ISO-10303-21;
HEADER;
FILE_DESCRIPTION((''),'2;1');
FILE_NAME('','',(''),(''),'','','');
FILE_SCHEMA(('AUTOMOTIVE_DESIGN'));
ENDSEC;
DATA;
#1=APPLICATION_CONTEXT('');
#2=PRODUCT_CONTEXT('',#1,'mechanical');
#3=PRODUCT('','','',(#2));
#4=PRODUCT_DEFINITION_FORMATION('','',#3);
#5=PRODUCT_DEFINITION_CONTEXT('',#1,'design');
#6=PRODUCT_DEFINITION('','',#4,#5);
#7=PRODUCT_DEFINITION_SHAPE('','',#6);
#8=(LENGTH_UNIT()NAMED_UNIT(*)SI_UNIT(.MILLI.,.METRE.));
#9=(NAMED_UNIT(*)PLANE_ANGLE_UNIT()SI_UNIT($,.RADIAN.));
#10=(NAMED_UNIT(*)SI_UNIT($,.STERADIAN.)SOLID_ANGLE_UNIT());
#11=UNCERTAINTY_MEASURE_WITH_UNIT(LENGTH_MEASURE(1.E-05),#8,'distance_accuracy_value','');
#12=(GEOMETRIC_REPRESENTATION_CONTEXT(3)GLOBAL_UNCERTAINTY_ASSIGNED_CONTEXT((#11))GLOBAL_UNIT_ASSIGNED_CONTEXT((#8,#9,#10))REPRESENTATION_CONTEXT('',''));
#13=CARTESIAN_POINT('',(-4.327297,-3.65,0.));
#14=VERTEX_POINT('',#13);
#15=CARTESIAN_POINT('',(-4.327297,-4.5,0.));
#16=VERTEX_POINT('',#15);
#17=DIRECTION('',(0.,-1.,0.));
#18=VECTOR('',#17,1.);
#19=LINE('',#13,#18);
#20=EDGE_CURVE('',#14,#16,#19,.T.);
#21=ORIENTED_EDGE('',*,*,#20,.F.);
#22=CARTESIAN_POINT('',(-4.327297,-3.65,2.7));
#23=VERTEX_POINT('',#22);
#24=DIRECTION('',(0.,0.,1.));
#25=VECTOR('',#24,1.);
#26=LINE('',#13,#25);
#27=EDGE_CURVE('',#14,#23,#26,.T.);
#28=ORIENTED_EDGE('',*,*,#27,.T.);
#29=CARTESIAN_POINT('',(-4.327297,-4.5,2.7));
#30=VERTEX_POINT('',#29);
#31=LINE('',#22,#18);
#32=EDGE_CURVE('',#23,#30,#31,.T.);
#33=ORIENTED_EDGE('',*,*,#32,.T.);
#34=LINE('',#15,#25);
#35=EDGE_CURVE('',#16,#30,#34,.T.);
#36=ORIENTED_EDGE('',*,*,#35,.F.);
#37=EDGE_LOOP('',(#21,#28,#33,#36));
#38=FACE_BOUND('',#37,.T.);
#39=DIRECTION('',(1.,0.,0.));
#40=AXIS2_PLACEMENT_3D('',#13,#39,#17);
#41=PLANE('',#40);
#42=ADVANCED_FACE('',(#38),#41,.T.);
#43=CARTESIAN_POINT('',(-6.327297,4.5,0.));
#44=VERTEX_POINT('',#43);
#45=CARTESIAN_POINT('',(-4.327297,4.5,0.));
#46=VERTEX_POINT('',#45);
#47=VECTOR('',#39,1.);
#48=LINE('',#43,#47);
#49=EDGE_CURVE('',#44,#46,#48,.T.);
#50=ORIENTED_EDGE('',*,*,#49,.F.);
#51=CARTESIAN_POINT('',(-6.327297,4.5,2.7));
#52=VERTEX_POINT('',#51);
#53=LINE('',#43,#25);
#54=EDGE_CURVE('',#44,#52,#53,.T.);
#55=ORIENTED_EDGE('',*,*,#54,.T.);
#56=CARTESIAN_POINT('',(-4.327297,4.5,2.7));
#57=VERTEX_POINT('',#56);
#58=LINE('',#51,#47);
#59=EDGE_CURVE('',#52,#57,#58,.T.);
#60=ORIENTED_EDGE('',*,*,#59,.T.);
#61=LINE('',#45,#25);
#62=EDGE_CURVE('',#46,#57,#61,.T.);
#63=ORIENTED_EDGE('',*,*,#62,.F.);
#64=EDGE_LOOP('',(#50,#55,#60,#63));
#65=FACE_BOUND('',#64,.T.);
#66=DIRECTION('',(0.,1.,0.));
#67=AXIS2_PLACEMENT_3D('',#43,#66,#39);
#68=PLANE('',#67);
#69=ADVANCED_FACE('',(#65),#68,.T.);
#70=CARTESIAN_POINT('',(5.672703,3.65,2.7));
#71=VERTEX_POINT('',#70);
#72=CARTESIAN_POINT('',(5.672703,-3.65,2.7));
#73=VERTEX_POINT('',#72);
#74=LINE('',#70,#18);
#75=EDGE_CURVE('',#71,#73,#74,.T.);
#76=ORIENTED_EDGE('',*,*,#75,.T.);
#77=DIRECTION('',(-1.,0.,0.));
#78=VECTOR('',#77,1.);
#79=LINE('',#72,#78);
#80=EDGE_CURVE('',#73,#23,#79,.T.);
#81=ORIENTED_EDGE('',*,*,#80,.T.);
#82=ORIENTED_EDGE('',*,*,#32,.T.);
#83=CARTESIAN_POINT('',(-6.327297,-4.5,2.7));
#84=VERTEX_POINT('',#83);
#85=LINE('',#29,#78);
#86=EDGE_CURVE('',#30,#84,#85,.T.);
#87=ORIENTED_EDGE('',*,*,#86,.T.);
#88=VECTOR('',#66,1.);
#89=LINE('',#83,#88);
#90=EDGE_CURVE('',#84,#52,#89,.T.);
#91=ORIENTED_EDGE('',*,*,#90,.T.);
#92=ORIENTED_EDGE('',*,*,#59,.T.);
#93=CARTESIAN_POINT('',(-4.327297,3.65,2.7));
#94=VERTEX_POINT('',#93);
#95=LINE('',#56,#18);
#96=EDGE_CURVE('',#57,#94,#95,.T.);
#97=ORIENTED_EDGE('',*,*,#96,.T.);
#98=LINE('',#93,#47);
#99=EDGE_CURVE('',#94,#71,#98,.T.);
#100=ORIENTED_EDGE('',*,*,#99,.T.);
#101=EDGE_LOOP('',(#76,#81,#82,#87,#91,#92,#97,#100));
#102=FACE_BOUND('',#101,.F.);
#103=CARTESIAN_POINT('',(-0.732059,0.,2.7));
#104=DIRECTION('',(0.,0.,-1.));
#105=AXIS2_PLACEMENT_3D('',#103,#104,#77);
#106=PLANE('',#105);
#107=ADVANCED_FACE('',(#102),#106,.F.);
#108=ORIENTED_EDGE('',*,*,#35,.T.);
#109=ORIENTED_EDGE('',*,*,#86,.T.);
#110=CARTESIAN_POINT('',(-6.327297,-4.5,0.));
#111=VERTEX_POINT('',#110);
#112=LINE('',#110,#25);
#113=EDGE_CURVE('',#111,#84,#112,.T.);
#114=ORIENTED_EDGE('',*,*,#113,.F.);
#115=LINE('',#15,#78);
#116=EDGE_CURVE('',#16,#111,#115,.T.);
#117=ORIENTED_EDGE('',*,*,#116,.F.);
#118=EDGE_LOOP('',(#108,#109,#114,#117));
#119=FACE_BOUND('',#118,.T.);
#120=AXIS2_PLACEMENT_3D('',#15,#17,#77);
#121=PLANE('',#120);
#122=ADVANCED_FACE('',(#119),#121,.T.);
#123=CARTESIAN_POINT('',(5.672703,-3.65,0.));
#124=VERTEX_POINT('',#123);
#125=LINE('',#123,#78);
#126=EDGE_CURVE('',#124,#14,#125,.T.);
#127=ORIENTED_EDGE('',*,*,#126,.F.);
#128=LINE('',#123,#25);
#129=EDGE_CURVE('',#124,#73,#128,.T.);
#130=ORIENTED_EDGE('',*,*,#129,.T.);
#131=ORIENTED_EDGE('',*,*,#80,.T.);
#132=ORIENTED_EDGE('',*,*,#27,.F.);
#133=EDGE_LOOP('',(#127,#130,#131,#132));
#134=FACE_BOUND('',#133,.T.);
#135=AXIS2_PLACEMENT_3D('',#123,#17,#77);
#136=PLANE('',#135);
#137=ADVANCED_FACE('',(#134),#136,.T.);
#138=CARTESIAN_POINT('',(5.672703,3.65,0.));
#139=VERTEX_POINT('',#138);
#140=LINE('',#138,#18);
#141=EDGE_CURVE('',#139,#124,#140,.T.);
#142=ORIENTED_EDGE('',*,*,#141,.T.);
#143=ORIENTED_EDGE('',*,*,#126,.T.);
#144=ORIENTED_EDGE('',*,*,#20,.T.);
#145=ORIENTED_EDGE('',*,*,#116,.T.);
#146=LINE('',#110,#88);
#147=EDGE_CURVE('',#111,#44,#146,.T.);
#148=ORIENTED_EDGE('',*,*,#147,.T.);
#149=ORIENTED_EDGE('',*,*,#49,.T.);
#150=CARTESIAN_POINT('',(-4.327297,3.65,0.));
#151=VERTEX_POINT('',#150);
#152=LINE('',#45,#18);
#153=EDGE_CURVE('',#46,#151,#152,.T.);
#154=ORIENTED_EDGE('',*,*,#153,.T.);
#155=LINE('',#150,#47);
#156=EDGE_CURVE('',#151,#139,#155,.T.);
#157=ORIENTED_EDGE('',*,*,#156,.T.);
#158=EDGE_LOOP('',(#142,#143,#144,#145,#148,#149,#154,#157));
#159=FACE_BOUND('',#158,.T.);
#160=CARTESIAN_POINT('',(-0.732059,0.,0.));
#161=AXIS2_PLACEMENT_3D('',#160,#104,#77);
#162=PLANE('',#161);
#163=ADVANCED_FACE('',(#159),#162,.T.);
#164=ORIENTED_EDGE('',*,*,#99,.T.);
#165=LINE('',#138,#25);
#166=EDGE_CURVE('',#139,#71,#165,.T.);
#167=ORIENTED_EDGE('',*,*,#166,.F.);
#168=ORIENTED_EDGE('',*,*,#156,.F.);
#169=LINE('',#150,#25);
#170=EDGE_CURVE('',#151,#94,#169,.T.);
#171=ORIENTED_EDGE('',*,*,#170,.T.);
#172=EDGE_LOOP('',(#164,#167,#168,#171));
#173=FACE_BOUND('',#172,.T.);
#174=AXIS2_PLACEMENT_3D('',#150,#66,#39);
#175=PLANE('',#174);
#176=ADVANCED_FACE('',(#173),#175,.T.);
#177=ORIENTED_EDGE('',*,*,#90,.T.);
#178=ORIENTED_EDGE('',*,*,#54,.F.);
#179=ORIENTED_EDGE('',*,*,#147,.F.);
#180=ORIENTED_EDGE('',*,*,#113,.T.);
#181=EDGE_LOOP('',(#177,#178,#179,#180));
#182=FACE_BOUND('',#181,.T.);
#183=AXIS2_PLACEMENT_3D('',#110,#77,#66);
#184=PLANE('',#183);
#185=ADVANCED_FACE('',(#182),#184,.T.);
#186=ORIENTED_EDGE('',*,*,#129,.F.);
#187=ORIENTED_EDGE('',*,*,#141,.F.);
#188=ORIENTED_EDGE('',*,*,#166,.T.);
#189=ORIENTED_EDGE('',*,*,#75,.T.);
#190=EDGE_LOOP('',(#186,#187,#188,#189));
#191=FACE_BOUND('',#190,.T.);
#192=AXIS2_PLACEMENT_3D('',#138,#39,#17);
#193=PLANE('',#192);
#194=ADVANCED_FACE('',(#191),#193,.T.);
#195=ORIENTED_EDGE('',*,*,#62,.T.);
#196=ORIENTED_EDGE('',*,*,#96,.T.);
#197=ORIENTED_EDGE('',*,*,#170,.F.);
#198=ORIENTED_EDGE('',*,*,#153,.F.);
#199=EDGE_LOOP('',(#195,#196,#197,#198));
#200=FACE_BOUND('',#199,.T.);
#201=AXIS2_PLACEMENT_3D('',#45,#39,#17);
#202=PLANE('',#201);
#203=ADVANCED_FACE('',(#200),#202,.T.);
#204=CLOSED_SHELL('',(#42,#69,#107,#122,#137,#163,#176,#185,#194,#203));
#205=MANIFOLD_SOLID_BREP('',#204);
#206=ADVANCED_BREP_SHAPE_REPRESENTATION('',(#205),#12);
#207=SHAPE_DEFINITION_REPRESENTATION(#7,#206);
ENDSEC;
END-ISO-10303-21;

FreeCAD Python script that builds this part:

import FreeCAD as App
import Part
import Sketcher
Q = App.Units.Quantity

doc = App.newDocument("Part")
params = doc.addObject("Spreadsheet::Sheet", "Params")
for row, (alias, value) in enumerate([
    ("sketch1_width", "10 mm"),
    ("sketch1_width2", "2 mm"),
    ("sketch1_height", "9 mm"),
    ("sketch1_height2", "7.3 mm"),
    ("pad1_length", "2.7 mm"),
], start=1):
    params.set(f"A{row}", alias)
    params.set(f"B{row}", "=" + value)
    params.setAlias(f"B{row}", alias)

body = doc.addObject("PartDesign::Body", "Body")

sketch1 = body.newObject("Sketcher::SketchObject", "Sketch")
sketch1.AttachmentSupport = (doc.getObject("XY_Plane"), [""])
sketch1.MapMode = "FlatFace"
sketch1.addGeometry([
    Part.LineSegment(App.Vector(5.672703, 3.65, 0), App.Vector(-4.327297, 3.65, 0)),
    Part.LineSegment(App.Vector(-4.327297, 3.65, 0), App.Vector(-4.327297, 4.5, 0)),
    Part.LineSegment(App.Vector(-4.327297, 4.5, 0), App.Vector(-6.327297, 4.5, 0)),
    Part.LineSegment(App.Vector(-6.327297, 4.5, 0), App.Vector(-6.327297, -4.5, 0)),
    Part.LineSegment(App.Vector(-6.327297, -4.5, 0), App.Vector(-4.327297, -4.5, 0)),
    Part.LineSegment(App.Vector(-4.327297, -4.5, 0), App.Vector(-4.327297, -3.65, 0)),
    Part.LineSegment(App.Vector(-4.327297, -3.65, 0), App.Vector(5.672703, -3.65, 0)),
    Part.LineSegment(App.Vector(5.672703, -3.65, 0), App.Vector(5.672703, 3.65, 0)),
], False)
sketch1.addConstraint([
    Sketcher.Constraint("Coincident", 0, 2, 1, 1),
    Sketcher.Constraint("Coincident", 1, 2, 2, 1),
    Sketcher.Constraint("Coincident", 2, 2, 3, 1),
    Sketcher.Constraint("Coincident", 3, 2, 4, 1),
    Sketcher.Constraint("Coincident", 4, 2, 5, 1),
    Sketcher.Constraint("Coincident", 5, 2, 6, 1),
    Sketcher.Constraint("Coincident", 6, 2, 7, 1),
    Sketcher.Constraint("Coincident", 7, 2, 0, 1),
    Sketcher.Constraint("Horizontal", 0),
    Sketcher.Constraint("Vertical", 1),
    Sketcher.Constraint("Horizontal", 2),
    Sketcher.Constraint("Vertical", 3),
    Sketcher.Constraint("Horizontal", 4),
    Sketcher.Constraint("Vertical", 5),
    Sketcher.Constraint("Horizontal", 6),
    Sketcher.Constraint("Vertical", 7),
    Sketcher.Constraint("Symmetric", 1, 2, 4, 2, -1),
    Sketcher.Constraint("Equal", 1, 5),
    Sketcher.Constraint("DistanceX", 0, 2, 0, 1, Q("10 mm")),
    Sketcher.Constraint("DistanceX", 2, 2, 2, 1, Q("2 mm")),
    Sketcher.Constraint("DistanceY", 3, 2, 3, 1, Q("9 mm")),
    Sketcher.Constraint("DistanceY", 7, 1, 7, 2, Q("7.3 mm")),
    Sketcher.Constraint("DistanceX", 0, 2, -1, 1, Q("4.327297 mm")),
])
sketch1.setExpression("Constraints[18]", "Params.sketch1_width")
sketch1.setExpression("Constraints[19]", "Params.sketch1_width2")
sketch1.setExpression("Constraints[20]", "Params.sketch1_height")
sketch1.setExpression("Constraints[21]", "Params.sketch1_height2")
pad1 = body.newObject("PartDesign::Pad", "Pad")
pad1.Profile = sketch1
pad1.setExpression("Length", "Params.pad1_length")

doc.recompute()
